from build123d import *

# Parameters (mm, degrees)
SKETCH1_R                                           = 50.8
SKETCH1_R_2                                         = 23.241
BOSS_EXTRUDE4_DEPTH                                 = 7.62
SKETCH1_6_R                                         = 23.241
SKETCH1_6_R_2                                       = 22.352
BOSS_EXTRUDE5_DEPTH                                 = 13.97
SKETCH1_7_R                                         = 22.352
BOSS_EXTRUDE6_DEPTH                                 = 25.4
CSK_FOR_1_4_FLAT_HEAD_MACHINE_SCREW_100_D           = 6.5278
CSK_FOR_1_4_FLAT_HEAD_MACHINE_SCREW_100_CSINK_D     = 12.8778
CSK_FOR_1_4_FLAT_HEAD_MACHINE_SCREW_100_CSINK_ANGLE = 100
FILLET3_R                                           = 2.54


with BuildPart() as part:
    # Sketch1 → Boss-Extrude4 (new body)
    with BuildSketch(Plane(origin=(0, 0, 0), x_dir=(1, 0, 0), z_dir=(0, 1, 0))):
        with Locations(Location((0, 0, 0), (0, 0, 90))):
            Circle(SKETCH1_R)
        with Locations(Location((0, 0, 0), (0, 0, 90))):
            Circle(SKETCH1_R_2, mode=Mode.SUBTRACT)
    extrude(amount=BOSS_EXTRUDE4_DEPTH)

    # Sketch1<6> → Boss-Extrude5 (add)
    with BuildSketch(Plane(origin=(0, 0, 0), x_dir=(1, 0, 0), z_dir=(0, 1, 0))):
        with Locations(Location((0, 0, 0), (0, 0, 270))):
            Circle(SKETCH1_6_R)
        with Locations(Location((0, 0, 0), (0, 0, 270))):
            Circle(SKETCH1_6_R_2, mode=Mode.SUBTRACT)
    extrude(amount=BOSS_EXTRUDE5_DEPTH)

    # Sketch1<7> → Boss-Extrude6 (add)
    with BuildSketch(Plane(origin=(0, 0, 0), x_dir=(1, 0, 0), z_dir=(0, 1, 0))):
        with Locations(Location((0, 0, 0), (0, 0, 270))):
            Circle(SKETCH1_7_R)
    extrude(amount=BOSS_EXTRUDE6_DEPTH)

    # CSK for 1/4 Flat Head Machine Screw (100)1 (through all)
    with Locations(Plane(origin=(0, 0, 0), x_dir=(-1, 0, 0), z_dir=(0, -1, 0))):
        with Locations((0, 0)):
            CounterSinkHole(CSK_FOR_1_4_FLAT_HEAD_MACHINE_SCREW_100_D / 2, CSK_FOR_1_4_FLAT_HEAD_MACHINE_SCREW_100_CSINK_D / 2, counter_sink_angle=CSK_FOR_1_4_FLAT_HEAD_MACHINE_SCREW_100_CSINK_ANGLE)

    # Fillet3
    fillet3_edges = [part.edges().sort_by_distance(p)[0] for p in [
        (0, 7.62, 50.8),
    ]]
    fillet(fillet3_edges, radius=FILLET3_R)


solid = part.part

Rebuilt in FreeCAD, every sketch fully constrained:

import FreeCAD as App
import Part
import Sketcher

V = App.Vector
Q = App.Units.Quantity


def edges_at(feature, points):
    """Names of the edges that pass closest to the given points."""
    edges = feature.Shape.Edges
    near = lambda p: min(range(len(edges)), key=lambda i: edges[i].distToShape(Part.Vertex(*p))[0])
    return sorted({f"Edge{near(p) + 1}" for p in points})

doc = App.newDocument("Part")
params = doc.addObject("Spreadsheet::Sheet", "Params")
for row, (alias, value) in enumerate([
    ("sketch1_diameter", "4 in"),
    ("sketch1_diameter2", "1.83 in"),
    ("pad1_length", "0.3 in"),
    ("sketch2_diameter", "1.83 in"),
    ("sketch2_diameter2", "1.76 in"),
    ("pad2_length", "0.55 in"),
    ("sketch3_diameter", "1.76 in"),
    ("pad3_length", "1 in"),
    ("sketch4_diameter", "0.257 in"),
    ("hole_diameter", "0.257 in"),
    ("hole_csink_diameter", "0.507 in"),
    ("fillet_radius", "0.1 in"),
], start=1):
    params.set(f"A{row}", alias)
    params.set(f"B{row}", "=" + value)
    params.setAlias(f"B{row}", alias)

body = doc.addObject("PartDesign::Body", "Body")

# Sketch on XZ plane
sketch1 = doc.addObject("Sketcher::SketchObject", "Sketch")
body.addObject(sketch1)
sketch1.AttachmentSupport = (doc.XZ_Plane, [""])
sketch1.MapMode = "FlatFace"
sketch1.addGeometry(Part.Circle(V(0, 0, 0), V(0, 0, 1), 51), False)
sketch1.addGeometry(Part.Circle(V(0, 0, 0), V(0, 0, 1), 23), False)
sketch1.addConstraint(Sketcher.Constraint("Coincident", 0, 3, -1, 1))
sketch1.addConstraint(Sketcher.Constraint("Coincident", 1, 3, -1, 1))
sketch1.addConstraint(Sketcher.Constraint("Diameter", 0, Q("4 in")))
sketch1.addConstraint(Sketcher.Constraint("Diameter", 1, Q("1.83 in")))
sketch1.setExpression("Constraints[2]", "Params.sketch1_diameter")
sketch1.setExpression("Constraints[3]", "Params.sketch1_diameter2")
pad1 = doc.addObject("PartDesign::Pad", "Pad")
body.addObject(pad1)
pad1.Profile = sketch1
pad1.setExpression("Length", "Params.pad1_length")
pad1.Reversed = True

# Sketch on XZ plane
sketch2 = doc.addObject("Sketcher::SketchObject", "Sketch001")
body.addObject(sketch2)
sketch2.AttachmentSupport = (doc.XZ_Plane, [""])
sketch2.MapMode = "FlatFace"
sketch2.addGeometry(Part.Circle(V(0, 0, 0), V(0, 0, 1), 23), False)
sketch2.addGeometry(Part.Circle(V(0, 0, 0), V(0, 0, 1), 22), False)
sketch2.addConstraint(Sketcher.Constraint("Coincident", 0, 3, -1, 1))
sketch2.addConstraint(Sketcher.Constraint("Coincident", 1, 3, -1, 1))
sketch2.addConstraint(Sketcher.Constraint("Diameter", 0, Q("1.83 in")))
sketch2.addConstraint(Sketcher.Constraint("Diameter", 1, Q("1.76 in")))
sketch2.setExpression("Constraints[2]", "Params.sketch2_diameter")
sketch2.setExpression("Constraints[3]", "Params.sketch2_diameter2")
pad2 = doc.addObject("PartDesign::Pad", "Pad001")
body.addObject(pad2)
pad2.Profile = sketch2
pad2.setExpression("Length", "Params.pad2_length")
pad2.Reversed = True

# Sketch on XZ plane
sketch3 = doc.addObject("Sketcher::SketchObject", "Sketch002")
body.addObject(sketch3)
sketch3.AttachmentSupport = (doc.XZ_Plane, [""])
sketch3.MapMode = "FlatFace"
sketch3.addGeometry(Part.Circle(V(0, 0, 0), V(0, 0, 1), 22), False)
sketch3.addConstraint(Sketcher.Constraint("Coincident", 0, 3, -1, 1))
sketch3.addConstraint(Sketcher.Constraint("Diameter", 0, Q("1.76 in")))
sketch3.setExpression("Constraints[1]", "Params.sketch3_diameter")
pad3 = doc.addObject("PartDesign::Pad", "Pad002")
body.addObject(pad3)
pad3.Profile = sketch3
pad3.setExpression("Length", "Params.pad3_length")
pad3.Reversed = True

# Sketch on XZ plane
sketch4 = doc.addObject("Sketcher::SketchObject", "Sketch003")
body.addObject(sketch4)
sketch4.AttachmentSupport = (doc.XZ_Plane, [""])
sketch4.MapMode = "FlatFace"
sketch4.addGeometry(Part.Circle(V(0, 0, 0), V(0, 0, 1), 3.3), False)
sketch4.addConstraint(Sketcher.Constraint("Coincident", 0, 3, -1, 1))
sketch4.addConstraint(Sketcher.Constraint("Diameter", 0, Q("0.257 in")))
sketch4.setExpression("Constraints[1]", "Params.sketch4_diameter")
doc.recompute()
hole = doc.addObject("PartDesign::Hole", "Hole")
body.addObject(hole)
hole.Profile = sketch4
hole.ThreadType = "None"
hole.setExpression("Diameter", "Params.hole_diameter")
hole.DepthType = "ThroughAll"
hole.HoleCutType = "Countersink"
hole.setExpression("HoleCutDiameter", "Params.hole_csink_diameter")
hole.HoleCutCountersinkAngle = 100
doc.recompute()

fillet = doc.addObject("PartDesign::Fillet", "Fillet")
body.addObject(fillet)
fillet.Base = (hole, edges_at(hole, [(0, 7.62, 50.8)]))
fillet.setExpression("Radius", "Params.fillet_radius")

doc.recompute()
